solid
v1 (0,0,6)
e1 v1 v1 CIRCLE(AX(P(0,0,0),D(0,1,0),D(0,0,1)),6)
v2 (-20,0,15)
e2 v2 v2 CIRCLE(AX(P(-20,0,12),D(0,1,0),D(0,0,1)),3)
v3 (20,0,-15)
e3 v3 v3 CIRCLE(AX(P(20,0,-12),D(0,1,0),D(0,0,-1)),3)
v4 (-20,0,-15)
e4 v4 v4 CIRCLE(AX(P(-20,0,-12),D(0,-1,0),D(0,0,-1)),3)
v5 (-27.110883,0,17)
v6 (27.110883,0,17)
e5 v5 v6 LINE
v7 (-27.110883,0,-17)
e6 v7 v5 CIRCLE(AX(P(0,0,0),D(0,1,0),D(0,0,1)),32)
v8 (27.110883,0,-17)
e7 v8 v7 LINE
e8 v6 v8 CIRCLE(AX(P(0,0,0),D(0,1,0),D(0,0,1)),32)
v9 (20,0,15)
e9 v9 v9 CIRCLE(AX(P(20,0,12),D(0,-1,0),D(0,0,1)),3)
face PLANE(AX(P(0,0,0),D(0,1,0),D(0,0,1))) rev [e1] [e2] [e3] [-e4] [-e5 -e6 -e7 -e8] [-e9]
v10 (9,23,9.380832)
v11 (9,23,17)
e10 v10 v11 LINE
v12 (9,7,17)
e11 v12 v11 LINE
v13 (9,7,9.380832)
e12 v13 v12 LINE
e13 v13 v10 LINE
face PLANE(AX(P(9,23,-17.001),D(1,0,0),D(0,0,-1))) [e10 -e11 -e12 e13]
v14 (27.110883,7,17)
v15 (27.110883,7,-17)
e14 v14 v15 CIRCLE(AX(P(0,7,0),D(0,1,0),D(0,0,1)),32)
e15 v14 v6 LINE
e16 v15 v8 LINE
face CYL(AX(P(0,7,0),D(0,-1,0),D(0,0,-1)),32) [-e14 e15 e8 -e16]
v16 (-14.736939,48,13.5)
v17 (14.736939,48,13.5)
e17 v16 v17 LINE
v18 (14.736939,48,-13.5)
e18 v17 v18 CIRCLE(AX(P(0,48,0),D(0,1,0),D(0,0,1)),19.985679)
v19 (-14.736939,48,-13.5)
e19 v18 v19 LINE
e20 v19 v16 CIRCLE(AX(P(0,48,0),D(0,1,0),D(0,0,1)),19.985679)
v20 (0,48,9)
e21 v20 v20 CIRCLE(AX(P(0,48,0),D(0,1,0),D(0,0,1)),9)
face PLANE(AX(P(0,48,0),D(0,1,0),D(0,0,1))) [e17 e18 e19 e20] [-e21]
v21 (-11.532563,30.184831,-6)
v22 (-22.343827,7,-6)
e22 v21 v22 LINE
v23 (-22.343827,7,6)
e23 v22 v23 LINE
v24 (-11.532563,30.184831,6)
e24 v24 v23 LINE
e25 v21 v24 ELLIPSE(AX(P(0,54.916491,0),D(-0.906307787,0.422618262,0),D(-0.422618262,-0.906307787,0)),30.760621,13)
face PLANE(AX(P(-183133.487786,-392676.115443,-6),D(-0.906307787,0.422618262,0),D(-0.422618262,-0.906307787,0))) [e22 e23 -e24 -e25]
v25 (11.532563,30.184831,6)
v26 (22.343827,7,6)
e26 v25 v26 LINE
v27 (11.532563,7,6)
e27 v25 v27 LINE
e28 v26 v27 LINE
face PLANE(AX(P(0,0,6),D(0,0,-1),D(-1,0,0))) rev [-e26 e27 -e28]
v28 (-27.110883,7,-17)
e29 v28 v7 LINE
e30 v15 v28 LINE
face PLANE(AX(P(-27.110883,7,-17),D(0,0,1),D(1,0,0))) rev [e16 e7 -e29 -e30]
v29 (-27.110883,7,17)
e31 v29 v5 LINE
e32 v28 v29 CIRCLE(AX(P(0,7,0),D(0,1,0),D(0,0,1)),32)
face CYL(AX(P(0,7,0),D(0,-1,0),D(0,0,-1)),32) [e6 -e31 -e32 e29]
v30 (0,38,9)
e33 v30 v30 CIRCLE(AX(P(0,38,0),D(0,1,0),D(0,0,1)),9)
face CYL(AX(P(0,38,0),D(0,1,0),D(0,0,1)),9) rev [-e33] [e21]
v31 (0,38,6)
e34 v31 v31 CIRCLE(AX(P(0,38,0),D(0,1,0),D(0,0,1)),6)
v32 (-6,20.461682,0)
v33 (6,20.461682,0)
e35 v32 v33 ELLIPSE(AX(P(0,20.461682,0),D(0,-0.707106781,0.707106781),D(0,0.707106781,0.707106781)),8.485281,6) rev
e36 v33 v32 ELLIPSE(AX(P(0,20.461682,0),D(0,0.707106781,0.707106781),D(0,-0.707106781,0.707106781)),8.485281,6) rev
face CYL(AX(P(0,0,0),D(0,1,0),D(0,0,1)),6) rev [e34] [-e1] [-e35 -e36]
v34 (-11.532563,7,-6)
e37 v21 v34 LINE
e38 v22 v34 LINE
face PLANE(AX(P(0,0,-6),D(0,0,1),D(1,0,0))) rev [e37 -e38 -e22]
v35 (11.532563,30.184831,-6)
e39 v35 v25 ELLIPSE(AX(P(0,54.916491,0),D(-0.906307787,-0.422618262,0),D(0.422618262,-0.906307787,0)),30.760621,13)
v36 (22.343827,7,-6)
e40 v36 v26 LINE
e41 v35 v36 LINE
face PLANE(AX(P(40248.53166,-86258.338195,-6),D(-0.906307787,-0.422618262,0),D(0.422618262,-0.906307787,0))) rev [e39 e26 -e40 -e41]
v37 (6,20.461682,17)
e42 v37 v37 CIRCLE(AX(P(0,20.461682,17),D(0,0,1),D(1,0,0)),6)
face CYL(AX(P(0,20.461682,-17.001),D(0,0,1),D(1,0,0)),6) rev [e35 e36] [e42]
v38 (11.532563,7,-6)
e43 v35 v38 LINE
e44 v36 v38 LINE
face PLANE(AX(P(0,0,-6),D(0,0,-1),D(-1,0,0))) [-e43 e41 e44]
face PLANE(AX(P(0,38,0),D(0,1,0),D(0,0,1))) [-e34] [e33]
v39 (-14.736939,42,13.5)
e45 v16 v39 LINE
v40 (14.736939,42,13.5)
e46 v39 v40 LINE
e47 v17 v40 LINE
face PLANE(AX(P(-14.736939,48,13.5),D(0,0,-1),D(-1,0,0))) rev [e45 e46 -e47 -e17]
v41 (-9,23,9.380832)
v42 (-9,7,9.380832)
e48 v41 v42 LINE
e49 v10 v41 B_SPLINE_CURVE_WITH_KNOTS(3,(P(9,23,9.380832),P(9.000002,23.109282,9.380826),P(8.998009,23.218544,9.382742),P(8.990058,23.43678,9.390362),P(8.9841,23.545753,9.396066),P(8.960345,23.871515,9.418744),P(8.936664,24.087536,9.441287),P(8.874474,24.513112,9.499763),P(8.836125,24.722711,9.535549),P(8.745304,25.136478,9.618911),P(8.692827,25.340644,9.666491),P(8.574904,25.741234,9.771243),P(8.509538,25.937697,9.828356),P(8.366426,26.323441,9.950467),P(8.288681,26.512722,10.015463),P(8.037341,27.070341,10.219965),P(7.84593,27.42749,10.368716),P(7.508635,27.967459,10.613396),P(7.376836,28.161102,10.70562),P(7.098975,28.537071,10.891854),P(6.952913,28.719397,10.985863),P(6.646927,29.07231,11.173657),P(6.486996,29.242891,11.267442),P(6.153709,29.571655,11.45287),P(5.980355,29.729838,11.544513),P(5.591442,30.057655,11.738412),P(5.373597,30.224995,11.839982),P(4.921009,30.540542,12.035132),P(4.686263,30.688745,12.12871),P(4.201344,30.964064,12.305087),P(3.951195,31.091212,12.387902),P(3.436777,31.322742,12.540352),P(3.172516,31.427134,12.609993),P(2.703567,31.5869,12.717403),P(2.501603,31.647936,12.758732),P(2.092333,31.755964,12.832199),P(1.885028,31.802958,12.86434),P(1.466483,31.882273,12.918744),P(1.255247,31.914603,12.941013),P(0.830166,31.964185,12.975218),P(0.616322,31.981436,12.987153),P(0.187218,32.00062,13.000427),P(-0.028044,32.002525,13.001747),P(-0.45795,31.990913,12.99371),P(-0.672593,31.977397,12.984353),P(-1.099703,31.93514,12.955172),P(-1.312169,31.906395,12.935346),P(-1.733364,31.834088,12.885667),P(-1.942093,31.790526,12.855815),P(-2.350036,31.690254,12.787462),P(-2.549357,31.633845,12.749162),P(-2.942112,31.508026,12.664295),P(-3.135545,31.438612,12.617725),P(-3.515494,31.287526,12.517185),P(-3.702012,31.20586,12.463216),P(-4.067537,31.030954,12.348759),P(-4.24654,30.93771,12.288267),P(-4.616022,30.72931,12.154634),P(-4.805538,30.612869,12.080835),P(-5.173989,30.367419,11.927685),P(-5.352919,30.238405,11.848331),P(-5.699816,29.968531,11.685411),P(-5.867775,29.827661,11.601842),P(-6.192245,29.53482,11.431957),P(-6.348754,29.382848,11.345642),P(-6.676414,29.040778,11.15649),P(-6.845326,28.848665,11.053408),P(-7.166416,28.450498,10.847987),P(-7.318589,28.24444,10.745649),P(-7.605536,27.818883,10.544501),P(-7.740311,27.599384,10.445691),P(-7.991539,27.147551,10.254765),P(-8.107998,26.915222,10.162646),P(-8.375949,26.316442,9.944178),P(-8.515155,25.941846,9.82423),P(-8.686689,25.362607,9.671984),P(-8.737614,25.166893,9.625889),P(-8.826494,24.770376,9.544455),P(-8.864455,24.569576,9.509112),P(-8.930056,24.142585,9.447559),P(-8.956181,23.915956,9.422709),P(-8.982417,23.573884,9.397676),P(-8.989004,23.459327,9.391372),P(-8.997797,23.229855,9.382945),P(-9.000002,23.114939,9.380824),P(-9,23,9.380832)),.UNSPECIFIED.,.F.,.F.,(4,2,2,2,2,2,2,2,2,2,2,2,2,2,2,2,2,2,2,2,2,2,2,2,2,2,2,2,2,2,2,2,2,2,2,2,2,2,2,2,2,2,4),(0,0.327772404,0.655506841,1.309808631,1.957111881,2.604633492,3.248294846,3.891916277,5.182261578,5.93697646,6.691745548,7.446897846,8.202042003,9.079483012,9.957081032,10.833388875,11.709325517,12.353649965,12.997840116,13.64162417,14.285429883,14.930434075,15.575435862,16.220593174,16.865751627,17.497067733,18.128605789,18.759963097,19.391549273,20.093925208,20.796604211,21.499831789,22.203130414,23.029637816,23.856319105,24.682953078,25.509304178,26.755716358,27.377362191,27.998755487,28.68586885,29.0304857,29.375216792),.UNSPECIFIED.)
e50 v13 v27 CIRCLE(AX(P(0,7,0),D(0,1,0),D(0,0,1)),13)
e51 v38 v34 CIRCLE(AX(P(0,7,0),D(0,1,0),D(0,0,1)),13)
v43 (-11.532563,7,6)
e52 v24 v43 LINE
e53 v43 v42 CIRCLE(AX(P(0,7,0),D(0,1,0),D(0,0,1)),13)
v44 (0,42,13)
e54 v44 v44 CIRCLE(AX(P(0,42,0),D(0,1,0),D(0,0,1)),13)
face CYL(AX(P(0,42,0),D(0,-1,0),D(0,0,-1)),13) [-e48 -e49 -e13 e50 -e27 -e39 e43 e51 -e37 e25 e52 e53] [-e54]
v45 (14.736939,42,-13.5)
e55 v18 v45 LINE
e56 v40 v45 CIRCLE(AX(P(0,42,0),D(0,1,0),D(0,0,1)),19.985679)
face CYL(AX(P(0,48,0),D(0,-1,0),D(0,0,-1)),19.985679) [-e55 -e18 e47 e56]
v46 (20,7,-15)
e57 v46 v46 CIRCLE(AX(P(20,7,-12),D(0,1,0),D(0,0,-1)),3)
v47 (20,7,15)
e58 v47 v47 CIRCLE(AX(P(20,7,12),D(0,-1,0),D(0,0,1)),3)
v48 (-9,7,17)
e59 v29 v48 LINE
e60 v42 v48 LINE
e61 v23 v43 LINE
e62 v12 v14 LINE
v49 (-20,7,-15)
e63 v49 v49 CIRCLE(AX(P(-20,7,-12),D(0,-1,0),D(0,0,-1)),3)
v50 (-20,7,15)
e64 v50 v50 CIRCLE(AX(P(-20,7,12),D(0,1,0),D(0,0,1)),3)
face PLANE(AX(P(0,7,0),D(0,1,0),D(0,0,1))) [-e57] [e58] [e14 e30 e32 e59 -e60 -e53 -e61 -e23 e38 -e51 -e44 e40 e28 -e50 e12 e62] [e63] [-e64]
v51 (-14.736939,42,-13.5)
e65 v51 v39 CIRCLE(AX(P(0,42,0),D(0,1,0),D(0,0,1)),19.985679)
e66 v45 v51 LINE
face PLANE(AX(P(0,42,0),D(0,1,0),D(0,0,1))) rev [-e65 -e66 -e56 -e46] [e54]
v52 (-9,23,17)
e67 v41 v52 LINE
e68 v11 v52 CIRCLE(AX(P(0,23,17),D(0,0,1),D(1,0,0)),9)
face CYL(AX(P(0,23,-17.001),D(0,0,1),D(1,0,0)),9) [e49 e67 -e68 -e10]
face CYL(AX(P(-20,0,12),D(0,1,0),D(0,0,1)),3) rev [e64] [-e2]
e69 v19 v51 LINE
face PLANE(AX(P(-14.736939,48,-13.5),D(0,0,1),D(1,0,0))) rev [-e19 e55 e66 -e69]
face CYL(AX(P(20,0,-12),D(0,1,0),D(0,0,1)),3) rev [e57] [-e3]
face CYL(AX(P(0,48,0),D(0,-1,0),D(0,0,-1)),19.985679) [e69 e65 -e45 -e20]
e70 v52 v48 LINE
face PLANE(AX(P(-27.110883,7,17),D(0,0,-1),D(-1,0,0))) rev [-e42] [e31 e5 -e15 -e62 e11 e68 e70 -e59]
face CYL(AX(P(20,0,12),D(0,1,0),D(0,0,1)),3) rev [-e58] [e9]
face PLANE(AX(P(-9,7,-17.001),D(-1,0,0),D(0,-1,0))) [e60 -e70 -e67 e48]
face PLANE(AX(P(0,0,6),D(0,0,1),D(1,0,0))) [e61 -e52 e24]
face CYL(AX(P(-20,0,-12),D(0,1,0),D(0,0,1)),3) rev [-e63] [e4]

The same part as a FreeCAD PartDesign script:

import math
import FreeCAD as App
import Part
import Sketcher

V = App.Vector
Q = App.Units.Quantity


def add_polygon(sketch, points):
    """Adds a closed chain of lines whose ends are joined by coincident constraints."""
    first, n = sketch.GeometryCount, len(points)
    for a, b in zip(points, points[1:] + points[:1]):
        sketch.addGeometry(Part.LineSegment(App.Vector(*a, 0), App.Vector(*b, 0)), False)
    for i in range(n):
        sketch.addConstraint(Sketcher.Constraint("Coincident", first + i, 2, first + (i + 1) % n, 1))

doc = App.newDocument("Part")
body = doc.addObject("PartDesign::Body", "Body")

# Sketch on XZ plane
sketch1 = body.newObject("Sketcher::SketchObject", "Sketch")
sketch1.AttachmentSupport = (doc.getObject("XZ_Plane"), [""])
sketch1.MapMode = "FlatFace"
sketch1.addGeometry(Part.LineSegment(V(27, -17, 0), V(-27, -17, 0)), False)
sketch1.addGeometry(Part.ArcOfCircle(Part.Circle(V(0, 0, 0), V(0, 0, 1), 32), math.radians(148), math.radians(212)), False)
sketch1.addGeometry(Part.LineSegment(V(-27, 17, 0), V(27, 17, 0)), False)
sketch1.addGeometry(Part.ArcOfCircle(Part.Circle(V(0, 0, 0), V(0, 0, 1), 32), math.radians(-32), math.radians(32)), False)
sketch1.addConstraint(Sketcher.Constraint("Coincident", 0, 2, 1, 2))
sketch1.addConstraint(Sketcher.Constraint("Coincident", 1, 1, 2, 1))
sketch1.addConstraint(Sketcher.Constraint("Coincident", 2, 2, 3, 2))
sketch1.addConstraint(Sketcher.Constraint("Coincident", 3, 1, 0, 1))
sketch1.addConstraint(Sketcher.Constraint("Horizontal", 0))
sketch1.addConstraint(Sketcher.Constraint("Horizontal", 2))
sketch1.addConstraint(Sketcher.Constraint("Coincident", 1, 3, -1, 1))
sketch1.addConstraint(Sketcher.Constraint("Coincident", 3, 3, -1, 1))
sketch1.addConstraint(Sketcher.Constraint("Equal", 1, 3))
sketch1.addConstraint(Sketcher.Constraint("Vertical", 0, 2, 1, 1))
sketch1.addConstraint(Sketcher.Constraint("Radius", 1, 32.0))
sketch1.addConstraint(Sketcher.Constraint("DistanceY", 0, 2, -1, 1, 17.0))
pad1 = body.newObject("PartDesign::Pad", "Pad")
pad1.Profile = sketch1
pad1.Length = 7
pad1.Reversed = True

# Sketch on XZ plane
sketch2 = body.newObject("Sketcher::SketchObject", "Sketch001")
sketch2.AttachmentSupport = (doc.getObject("XZ_Plane"), [""])
sketch2.MapMode = "FlatFace"
sketch2.AttachmentOffset = App.Placement(V(0, 0, -7), App.Rotation())
sketch2.addGeometry(Part.Circle(V(-20, 12, 0), V(0, 0, 1), 3), False)
sketch2.addConstraint(Sketcher.Constraint("Diameter", 0, 6.0))
sketch2.addConstraint(Sketcher.Constraint("DistanceX", 0, 3, -1, 1, 20.0))
sketch2.addConstraint(Sketcher.Constraint("DistanceY", -1, 1, 0, 3, 12.0))
pocket1 = body.newObject("PartDesign::Pocket", "Pocket")
pocket1.Profile = sketch2
pocket1.Type = "ThroughAll"
pocket1.Reversed = True
doc.recompute()

mirrored = body.newObject("PartDesign::Mirrored", "Mirrored")
mirrored.Originals = [pocket1]
mirrored.MirrorPlane = (doc.getObject("YZ_Plane"), [""])
body.Tip = mirrored
doc.recompute()

mirrored2 = body.newObject("PartDesign::Mirrored", "Mirrored001")
mirrored2.Originals = [pocket1]
mirrored2.MirrorPlane = (doc.getObject("XY_Plane"), [""])
body.Tip = mirrored2

# Sketch on XZ plane
sketch3 = body.newObject("Sketcher::SketchObject", "Sketch002")
sketch3.AttachmentSupport = (doc.getObject("XZ_Plane"), [""])
sketch3.MapMode = "FlatFace"
sketch3.AttachmentOffset = App.Placement(V(0, 0, -7), App.Rotation())
sketch3.addGeometry(Part.Circle(V(20, -12, 0), V(0, 0, 1), 3), False)
sketch3.addConstraint(Sketcher.Constraint("Diameter", 0, 6.0))
sketch3.addConstraint(Sketcher.Constraint("DistanceX", -1, 1, 0, 3, 20.0))
sketch3.addConstraint(Sketcher.Constraint("DistanceY", 0, 3, -1, 1, 12.0))
pocket2 = body.newObject("PartDesign::Pocket", "Pocket001")
pocket2.Profile = sketch3
pocket2.Type = "ThroughAll"
pocket2.Reversed = True

# Sketch on XZ plane
sketch4 = body.newObject("Sketcher::SketchObject", "Sketch003")
sketch4.AttachmentSupport = (doc.getObject("XZ_Plane"), [""])
sketch4.MapMode = "FlatFace"
sketch4.AttachmentOffset = App.Placement(V(0, 0, -7), App.Rotation())
sketch4.addGeometry(Part.Circle(V(0, 0, 0), V(0, 0, 1), 13), False)
sketch4.addConstraint(Sketcher.Constraint("Coincident", 0, 3, -1, 1))
sketch4.addConstraint(Sketcher.Constraint("Diameter", 0, 26.0))
pad2 = body.newObject("PartDesign::Pad", "Pad001")
pad2.Profile = sketch4
pad2.Length = 35
pad2.Reversed = True

# Sketch on XZ plane
sketch5 = body.newObject("Sketcher::SketchObject", "Sketch004")
sketch5.AttachmentSupport = (doc.getObject("XZ_Plane"), [""])
sketch5.MapMode = "FlatFace"
sketch5.AttachmentOffset = App.Placement(V(0, 0, -42), App.Rotation())
sketch5.addGeometry(Part.LineSegment(V(15, -14, 0), V(-15, -14, 0)), False)
sketch5.addGeometry(Part.ArcOfCircle(Part.Circle(V(0, 0, 0), V(0, 0, 1), 20), math.radians(138), math.radians(222)), False)
sketch5.addGeometry(Part.LineSegment(V(-15, 14, 0), V(15, 14, 0)), False)
sketch5.addGeometry(Part.ArcOfCircle(Part.Circle(V(0, 0, 0), V(0, 0, 1), 20), math.radians(-42), math.radians(42)), False)
sketch5.addConstraint(Sketcher.Constraint("Coincident", 0, 2, 1, 2))
sketch5.addConstraint(Sketcher.Constraint("Coincident", 1, 1, 2, 1))
sketch5.addConstraint(Sketcher.Constraint("Coincident", 2, 2, 3, 2))
sketch5.addConstraint(Sketcher.Constraint("Coincident", 3, 1, 0, 1))
sketch5.addConstraint(Sketcher.Constraint("Horizontal", 0))
sketch5.addConstraint(Sketcher.Constraint("Horizontal", 2))
sketch5.addConstraint(Sketcher.Constraint("Coincident", 1, 3, -1, 1))
sketch5.addConstraint(Sketcher.Constraint("Coincident", 3, 3, -1, 1))
sketch5.addConstraint(Sketcher.Constraint("Equal", 1, 3))
sketch5.addConstraint(Sketcher.Constraint("Vertical", 0, 2, 1, 1))
sketch5.addConstraint(Sketcher.Constraint("DistanceY", 0, 2, 1, 1, 27.0))
sketch5.addConstraint(Sketcher.Constraint("Radius", 1, 19.985679))
pad3 = body.newObject("PartDesign::Pad", "Pad002")
pad3.Profile = sketch5
pad3.Length = 6
pad3.Reversed = True

# Sketch on XZ plane
sketch6 = body.newObject("Sketcher::SketchObject", "Sketch005")
sketch6.AttachmentSupport = (doc.getObject("XZ_Plane"), [""])
sketch6.MapMode = "FlatFace"
sketch6.AttachmentOffset = App.Placement(V(0, 0, -48), App.Rotation())
sketch6.addGeometry(Part.Circle(V(0, 0, 0), V(0, 0, 1), 9), False)
sketch6.addConstraint(Sketcher.Constraint("Coincident", 0, 3, -1, 1))
sketch6.addConstraint(Sketcher.Constraint("Diameter", 0, 18.0))
pocket3 = body.newObject("PartDesign::Pocket", "Pocket002")
pocket3.Profile = sketch6
pocket3.Length = 10
pocket3.Reversed = True

# Sketch on XZ plane
sketch7 = body.newObject("Sketcher::SketchObject", "Sketch006")
sketch7.AttachmentSupport = (doc.getObject("XZ_Plane"), [""])
sketch7.MapMode = "FlatFace"
sketch7.AttachmentOffset = App.Placement(V(0, 0, -38), App.Rotation())
sketch7.addGeometry(Part.Circle(V(0, 0, 0), V(0, 0, 1), 6), False)
sketch7.addConstraint(Sketcher.Constraint("Coincident", 0, 3, -1, 1))
sketch7.addConstraint(Sketcher.Constraint("Diameter", 0, 12.0))
pocket4 = body.newObject("PartDesign::Pocket", "Pocket003")
pocket4.Profile = sketch7
pocket4.Type = "ThroughAll"
pocket4.Reversed = True

# Sketch on XY plane
sketch8 = body.newObject("Sketcher::SketchObject", "Sketch007")
sketch8.AttachmentSupport = (doc.getObject("XY_Plane"), [""])
sketch8.MapMode = "FlatFace"
sketch8.AttachmentOffset = App.Placement(V(0, 0, 17), App.Rotation())
sketch8.addGeometry(Part.LineSegment(V(-9, 23, 0), V(-9, 7, 0)), False)
sketch8.addGeometry(Part.LineSegment(V(-9, 7, 0), V(9, 7, 0)), False)
sketch8.addGeometry(Part.LineSegment(V(9, 7, 0), V(9, 23, 0)), False)
sketch8.addGeometry(Part.ArcOfCircle(Part.Circle(V(0, 23, 0), V(0, 0, 1), 9), math.radians(0), math.radians(180)), False)
sketch8.addConstraint(Sketcher.Constraint("Coincident", 0, 2, 1, 1))
sketch8.addConstraint(Sketcher.Constraint("Coincident", 1, 2, 2, 1))
sketch8.addConstraint(Sketcher.Constraint("Tangent", 2, 2, 3, 1))
sketch8.addConstraint(Sketcher.Constraint("Tangent", 3, 2, 0, 1))
sketch8.addConstraint(Sketcher.Constraint("Vertical", 0))
sketch8.addConstraint(Sketcher.Constraint("Horizontal", 1))
sketch8.addConstraint(Sketcher.Constraint("Vertical", 2))
sketch8.addConstraint(Sketcher.Constraint("PointOnObject", 3, 3, -2))
sketch8.addConstraint(Sketcher.Constraint("Radius", 3, 9.0))
sketch8.addConstraint(Sketcher.Constraint("DistanceY", 0, 2, 0, 1, 16.0))
sketch8.addConstraint(Sketcher.Constraint("DistanceY", -1, 1, 3, 3, 23.0))
pad4 = body.newObject("PartDesign::Pad", "Pad003")
pad4.Profile = sketch8
pad4.Type = "UpToFirst"
pad4.Reversed = True

# Sketch on XY plane
sketch9 = body.newObject("Sketcher::SketchObject", "Sketch008")
sketch9.AttachmentSupport = (doc.getObject("XY_Plane"), [""])
sketch9.MapMode = "FlatFace"
sketch9.AttachmentOffset = App.Placement(V(0, 0, 17), App.Rotation())
sketch9.addGeometry(Part.Circle(V(0, 20, 0), V(0, 0, 1), 6), False)
sketch9.addConstraint(Sketcher.Constraint("PointOnObject", 0, 3, -2))
sketch9.addConstraint(Sketcher.Constraint("Diameter", 0, 12.0))
sketch9.addConstraint(Sketcher.Constraint("DistanceY", -1, 1, 0, 3, 20.461682))
pocket5 = body.newObject("PartDesign::Pocket", "Pocket004")
pocket5.Profile = sketch9
pocket5.Type = "UpToFirst"

# Sketch on XY plane
sketch10 = body.newObject("Sketcher::SketchObject", "Sketch009")
sketch10.AttachmentSupport = (doc.getObject("XY_Plane"), [""])
sketch10.MapMode = "FlatFace"
add_polygon(sketch10, [(-22, 7), (-10, 7), (-11, 32), (-15, 23)])  # lines 0-3
sketch10.addConstraint(Sketcher.Constraint("Parallel", 2, 3))
sketch10.addConstraint(Sketcher.Constraint("Angle", 2, Q("-115 deg")))
sketch10.addConstraint(Sketcher.Constraint("DistanceY", -1, 1, 3, 2, 7.0))
sketch10.addConstraint(Sketcher.Constraint("DistanceY", -1, 1, 1, 2, 32.042999))
sketch10.addConstraint(Sketcher.Constraint("Distance", 1, 25.09788))
sketch10.addConstraint(Sketcher.Constraint("Distance", 3, 17.515288))
sketch10.addConstraint(Sketcher.Constraint("DistanceX", 1, 2, 0, 2, 0.172811))
sketch10.addConstraint(Sketcher.Constraint("DistanceX", 0, 2, -1, 1, 10.493273))
pad5 = body.newObject("PartDesign::Pad", "Pad004")
pad5.Profile = sketch10
pad5.Length = 12
pad5.Midplane = True
doc.recompute()

mirrored3 = body.newObject("PartDesign::Mirrored", "Mirrored002")
mirrored3.Originals = [pad5]
mirrored3.MirrorPlane = (doc.getObject("YZ_Plane"), [""])
body.Tip = mirrored3

doc.recompute()
